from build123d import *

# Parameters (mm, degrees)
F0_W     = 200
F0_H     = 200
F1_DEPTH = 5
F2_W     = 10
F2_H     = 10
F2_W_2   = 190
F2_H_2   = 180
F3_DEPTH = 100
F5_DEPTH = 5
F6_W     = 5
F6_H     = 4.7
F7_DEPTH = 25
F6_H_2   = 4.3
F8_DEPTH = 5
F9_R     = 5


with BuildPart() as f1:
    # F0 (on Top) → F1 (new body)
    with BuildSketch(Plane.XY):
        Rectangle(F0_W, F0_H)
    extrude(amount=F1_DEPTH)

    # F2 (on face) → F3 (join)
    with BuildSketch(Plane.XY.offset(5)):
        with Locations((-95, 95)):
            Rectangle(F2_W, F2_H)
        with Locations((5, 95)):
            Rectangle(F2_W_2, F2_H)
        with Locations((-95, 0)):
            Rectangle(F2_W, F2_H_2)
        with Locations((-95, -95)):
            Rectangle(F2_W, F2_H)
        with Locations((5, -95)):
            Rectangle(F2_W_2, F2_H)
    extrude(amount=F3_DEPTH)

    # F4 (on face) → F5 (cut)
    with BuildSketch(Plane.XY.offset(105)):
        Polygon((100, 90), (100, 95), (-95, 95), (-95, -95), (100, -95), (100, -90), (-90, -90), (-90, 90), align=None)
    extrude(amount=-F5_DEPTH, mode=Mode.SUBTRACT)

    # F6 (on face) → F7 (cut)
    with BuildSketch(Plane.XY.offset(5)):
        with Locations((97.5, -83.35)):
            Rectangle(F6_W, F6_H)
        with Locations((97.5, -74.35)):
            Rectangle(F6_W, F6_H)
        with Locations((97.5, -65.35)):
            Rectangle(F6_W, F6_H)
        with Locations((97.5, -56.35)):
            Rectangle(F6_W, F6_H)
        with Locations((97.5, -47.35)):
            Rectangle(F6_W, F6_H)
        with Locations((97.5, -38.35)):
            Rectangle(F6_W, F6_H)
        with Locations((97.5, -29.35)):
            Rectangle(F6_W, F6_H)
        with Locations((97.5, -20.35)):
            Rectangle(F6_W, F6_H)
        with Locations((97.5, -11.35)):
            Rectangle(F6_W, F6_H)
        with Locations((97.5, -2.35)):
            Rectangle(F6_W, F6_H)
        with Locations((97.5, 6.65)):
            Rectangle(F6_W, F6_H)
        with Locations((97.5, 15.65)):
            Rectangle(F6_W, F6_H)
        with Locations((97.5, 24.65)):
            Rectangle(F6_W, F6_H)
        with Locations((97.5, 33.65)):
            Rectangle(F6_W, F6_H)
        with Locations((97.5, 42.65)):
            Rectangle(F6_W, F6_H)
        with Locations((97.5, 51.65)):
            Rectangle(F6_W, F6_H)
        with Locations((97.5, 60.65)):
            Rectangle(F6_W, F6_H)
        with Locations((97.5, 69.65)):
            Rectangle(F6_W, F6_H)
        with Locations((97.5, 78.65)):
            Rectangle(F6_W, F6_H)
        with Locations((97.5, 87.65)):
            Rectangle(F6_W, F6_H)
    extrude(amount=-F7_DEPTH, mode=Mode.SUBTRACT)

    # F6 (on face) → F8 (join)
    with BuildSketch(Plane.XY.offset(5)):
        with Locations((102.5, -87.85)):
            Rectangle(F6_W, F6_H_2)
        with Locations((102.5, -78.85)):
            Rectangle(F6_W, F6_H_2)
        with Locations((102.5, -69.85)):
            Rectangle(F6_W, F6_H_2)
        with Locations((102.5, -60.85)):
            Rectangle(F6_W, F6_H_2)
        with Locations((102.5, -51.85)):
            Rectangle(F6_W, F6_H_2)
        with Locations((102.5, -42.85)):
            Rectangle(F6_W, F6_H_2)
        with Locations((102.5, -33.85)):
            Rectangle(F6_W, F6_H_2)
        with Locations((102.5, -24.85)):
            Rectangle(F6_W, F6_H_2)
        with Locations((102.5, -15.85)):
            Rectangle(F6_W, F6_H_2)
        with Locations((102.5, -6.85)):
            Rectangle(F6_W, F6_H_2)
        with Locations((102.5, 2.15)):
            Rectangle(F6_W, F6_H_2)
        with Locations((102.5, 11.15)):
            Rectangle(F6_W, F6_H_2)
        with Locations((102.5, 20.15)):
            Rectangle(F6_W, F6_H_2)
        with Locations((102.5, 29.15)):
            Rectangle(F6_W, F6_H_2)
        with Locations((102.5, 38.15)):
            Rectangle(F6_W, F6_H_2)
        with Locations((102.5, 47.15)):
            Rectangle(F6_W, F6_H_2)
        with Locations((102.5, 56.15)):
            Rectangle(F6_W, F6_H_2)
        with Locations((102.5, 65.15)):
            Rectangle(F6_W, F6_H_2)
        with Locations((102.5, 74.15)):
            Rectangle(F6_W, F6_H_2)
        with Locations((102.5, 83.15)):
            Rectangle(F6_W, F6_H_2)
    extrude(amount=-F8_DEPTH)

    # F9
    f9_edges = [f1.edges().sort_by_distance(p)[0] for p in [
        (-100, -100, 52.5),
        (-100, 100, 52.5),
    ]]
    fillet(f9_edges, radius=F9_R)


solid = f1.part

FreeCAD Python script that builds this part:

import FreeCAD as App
import Part
import Sketcher
from FreeCAD import Vector


def edges_at(feature, points):
    """Names of the edges that pass closest to the given points."""
    edges = feature.Shape.Edges
    near = lambda p: min(range(len(edges)), key=lambda i: edges[i].distToShape(Part.Vertex(*p))[0])
    return sorted({f"Edge{near(p) + 1}" for p in points})


def add_polygon(sketch, points):
    """Adds a closed chain of lines whose ends are joined by coincident constraints."""
    first, n = sketch.GeometryCount, len(points)
    for a, b in zip(points, points[1:] + points[:1]):
        sketch.addGeometry(Part.LineSegment(App.Vector(*a, 0), App.Vector(*b, 0)), False)
    for i in range(n):
        sketch.addConstraint(Sketcher.Constraint("Coincident", first + i, 2, first + (i + 1) % n, 1))

doc = App.newDocument("Part")
params = doc.addObject("Spreadsheet::Sheet", "Params")
for row, (alias, value) in enumerate([
    ("sketch1_width", "200 mm"),
    ("pad1_length", "5 mm"),
    ("sketch2_width", "200 mm"),
    ("sketch2_width2", "190 mm"),
    ("sketch2_height", "10 mm"),
    ("pad2_length", "100 mm"),
    ("sketch3_width", "195 mm"),
    ("sketch3_width2", "190 mm"),
    ("sketch3_height", "5 mm"),
    ("pocket1_length", "5 mm"),
    ("sketch4_width", "5 mm"),
    ("sketch4_height", "4.7 mm"),
    ("pocket2_length", "25 mm"),
    ("sketch5_width", "5 mm"),
    ("sketch5_height", "4.3 mm"),
    ("pad3_length", "5 mm"),
    ("fillet_radius", "5 mm"),
], start=1):
    params.set(f"A{row}", alias)
    params.set(f"B{row}", "=" + value)
    params.setAlias(f"B{row}", alias)

body = doc.addObject("PartDesign::Body", "Body")

# Sketch on XY plane
sketch1 = body.newObject("Sketcher::SketchObject", "Sketch")
sketch1.AttachmentSupport = (doc.getObject("XY_Plane"), [""])
sketch1.MapMode = "FlatFace"
add_polygon(sketch1, [(-100, 100), (-100, -100), (100, -100), (100, 100)])  # lines 0-3
sketch1.addConstraint([
    Sketcher.Constraint("Vertical", 0),
    Sketcher.Constraint("Horizontal", 1),
    Sketcher.Constraint("Vertical", 2),
    Sketcher.Constraint("Horizontal", 3),
    Sketcher.Constraint("Symmetric", 0, 2, 2, 2, -1, 1),
    Sketcher.Constraint("Equal", 3, 0),
    Sketcher.Constraint("DistanceX", 1, 1, 1, 2, 200.0),
])
sketch1.setExpression("Constraints[10]", "Params.sketch1_width")
pad1 = body.newObject("PartDesign::Pad", "Pad")
pad1.Profile = sketch1
pad1.setExpression("Length", "Params.pad1_length")

# Sketch on XY plane
sketch2 = body.newObject("Sketcher::SketchObject", "Sketch001")
sketch2.AttachmentSupport = (doc.getObject("XY_Plane"), [""])
sketch2.MapMode = "FlatFace"
sketch2.AttachmentOffset = App.Placement(Vector(0, 0, 5), App.Rotation())
add_polygon(sketch2, [(-100, 100), (-100, -100), (100, -100), (100, -90), (-90, -90), (-90, 90), (100, 90), (100, 100)])  # lines 0-7
sketch2.addConstraint([
    Sketcher.Constraint("Vertical", 0),
    Sketcher.Constraint("Horizontal", 1),
    Sketcher.Constraint("Vertical", 2),
    Sketcher.Constraint("Horizontal", 3),
    Sketcher.Constraint("Vertical", 4),
    Sketcher.Constraint("Horizontal", 5),
    Sketcher.Constraint("Vertical", 6),
    Sketcher.Constraint("Horizontal", 7),
    Sketcher.Constraint("Symmetric", 0, 2, 6, 2, -1, 1),
    Sketcher.Constraint("Symmetric", 2, 2, 5, 2, -1),
    Sketcher.Constraint("Equal", 7, 0),
    Sketcher.Constraint("DistanceX", 1, 1, 1, 2, 200.0),
    Sketcher.Constraint("DistanceX", 3, 2, 3, 1, 190.0),
    Sketcher.Constraint("DistanceY", 2, 1, 2, 2, 10.0),
])
sketch2.setExpression("Constraints[19]", "Params.sketch2_width")
sketch2.setExpression("Constraints[20]", "Params.sketch2_width2")
sketch2.setExpression("Constraints[21]", "Params.sketch2_height")
pad2 = body.newObject("PartDesign::Pad", "Pad001")
pad2.Profile = sketch2
pad2.setExpression("Length", "Params.pad2_length")

# Sketch on XY plane
sketch3 = body.newObject("Sketcher::SketchObject", "Sketch002")
sketch3.AttachmentSupport = (doc.getObject("XY_Plane"), [""])
sketch3.MapMode = "FlatFace"
sketch3.AttachmentOffset = App.Placement(Vector(0, 0, 105), App.Rotation())
add_polygon(sketch3, [(100, 90), (100, 95), (-95, 95), (-95, -95), (100, -95), (100, -90), (-90, -90), (-90, 90)])  # lines 0-7
sketch3.addConstraint([
    Sketcher.Constraint("Vertical", 0),
    Sketcher.Constraint("Horizontal", 1),
    Sketcher.Constraint("Vertical", 2),
    Sketcher.Constraint("Horizontal", 3),
    Sketcher.Constraint("Vertical", 4),
    Sketcher.Constraint("Horizontal", 5),
    Sketcher.Constraint("Vertical", 6),
    Sketcher.Constraint("Horizontal", 7),
    Sketcher.Constraint("Symmetric", 0, 2, 3, 2, -1),
    Sketcher.Constraint("Equal", 7, 2),
    Sketcher.Constraint("Equal", 0, 4),
    Sketcher.Constraint("DistanceX", 1, 2, 1, 1, 195.0),
    Sketcher.Constraint("DistanceX", 5, 2, 5, 1, 190.0),
    Sketcher.Constraint("DistanceY", 0, 1, 0, 2, 5.0),
    Sketcher.Constraint("DistanceX", -1, 1, 0, 2, 100.0),
])
sketch3.setExpression("Constraints[19]", "Params.sketch3_width")
sketch3.setExpression("Constraints[20]", "Params.sketch3_width2")
sketch3.setExpression("Constraints[21]", "Params.sketch3_height")
pocket1 = body.newObject("PartDesign::Pocket", "Pocket")
pocket1.Profile = sketch3
pocket1.setExpression("Length", "Params.pocket1_length")

# Sketch on XY plane
sketch4 = body.newObject("Sketcher::SketchObject", "Sketch003")
sketch4.AttachmentSupport = (doc.getObject("XY_Plane"), [""])
sketch4.MapMode = "FlatFace"
sketch4.AttachmentOffset = App.Placement(Vector(0, 0, 5), App.Rotation())
add_polygon(sketch4, [(95, -81), (95, -85.7), (100, -85.7), (100, -81)])  # lines 0-3
add_polygon(sketch4, [(95, -72), (95, -76.7), (100, -76.7), (100, -72)])  # lines 4-7
add_polygon(sketch4, [(95, -63), (95, -67.7), (100, -67.7), (100, -63)])  # lines 8-11
add_polygon(sketch4, [(95, -54), (95, -58.7), (100, -58.7), (100, -54)])  # lines 12-15
add_polygon(sketch4, [(95, -45), (95, -49.7), (100, -49.7), (100, -45)])  # lines 16-19
add_polygon(sketch4, [(95, -36), (95, -40.7), (100, -40.7), (100, -36)])  # lines 20-23
add_polygon(sketch4, [(95, -27), (95, -31.7), (100, -31.7), (100, -27)])  # lines 24-27
add_polygon(sketch4, [(95, -18), (95, -22.7), (100, -22.7), (100, -18)])  # lines 28-31
add_polygon(sketch4, [(95, -9), (95, -13.7), (100, -13.7), (100, -9)])  # lines 32-35
add_polygon(sketch4, [(95, 0), (95, -4.7), (100, -4.7), (100, 0)])  # lines 36-39
add_polygon(sketch4, [(95, 9), (95, 4.3), (100, 4.3), (100, 9)])  # lines 40-43
add_polygon(sketch4, [(95, 18), (95, 13.3), (100, 13.3), (100, 18)])  # lines 44-47
add_polygon(sketch4, [(95, 27), (95, 22.3), (100, 22.3), (100, 27)])  # lines 48-51
add_polygon(sketch4, [(95, 36), (95, 31.3), (100, 31.3), (100, 36)])  # lines 52-55
add_polygon(sketch4, [(95, 45), (95, 40.3), (100, 40.3), (100, 45)])  # lines 56-59
add_polygon(sketch4, [(95, 54), (95, 49.3), (100, 49.3), (100, 54)])  # lines 60-63
add_polygon(sketch4, [(95, 63), (95, 58.3), (100, 58.3), (100, 63)])  # lines 64-67
add_polygon(sketch4, [(95, 72), (95, 67.3), (100, 67.3), (100, 72)])  # lines 68-71
add_polygon(sketch4, [(95, 81), (95, 76.3), (100, 76.3), (100, 81)])  # lines 72-75
add_polygon(sketch4, [(95, 90), (95, 85.3), (100, 85.3), (100, 90)])  # lines 76-79
sketch4.addConstraint([
    Sketcher.Constraint("Vertical", 0),
    Sketcher.Constraint("Horizontal", 1),
    Sketcher.Constraint("Vertical", 2),
    Sketcher.Constraint("Horizontal", 3),
    Sketcher.Constraint("Vertical", 4),
    Sketcher.Constraint("Horizontal", 5),
    Sketcher.Constraint("Vertical", 6),
    Sketcher.Constraint("Horizontal", 7),
    Sketcher.Constraint("Vertical", 8),
    Sketcher.Constraint("Horizontal", 9),
    Sketcher.Constraint("Vertical", 10),
    Sketcher.Constraint("Horizontal", 11),
    Sketcher.Constraint("Vertical", 12),
    Sketcher.Constraint("Horizontal", 13),
    Sketcher.Constraint("Vertical", 14),
    Sketcher.Constraint("Horizontal", 15),
    Sketcher.Constraint("Vertical", 16),
    Sketcher.Constraint("Horizontal", 17),
    Sketcher.Constraint("Vertical", 18),
    Sketcher.Constraint("Horizontal", 19),
    Sketcher.Constraint("Vertical", 20),
    Sketcher.Constraint("Horizontal", 21),
    Sketcher.Constraint("Vertical", 22),
    Sketcher.Constraint("Horizontal", 23),
    Sketcher.Constraint("Vertical", 24),
    Sketcher.Constraint("Horizontal", 25),
    Sketcher.Constraint("Vertical", 26),
    Sketcher.Constraint("Horizontal", 27),
    Sketcher.Constraint("Vertical", 28),
    Sketcher.Constraint("Horizontal", 29),
    Sketcher.Constraint("Vertical", 30),
    Sketcher.Constraint("Horizontal", 31),
    Sketcher.Constraint("Vertical", 32),
    Sketcher.Constraint("Horizontal", 33),
    Sketcher.Constraint("Vertical", 34),
    Sketcher.Constraint("Horizontal", 35),
    Sketcher.Constraint("Vertical", 36),
    Sketcher.Constraint("Horizontal", 37),
    Sketcher.Constraint("Vertical", 38),
    Sketcher.Constraint("Horizontal", 39),
    Sketcher.Constraint("Vertical", 40),
    Sketcher.Constraint("Horizontal", 41),
    Sketcher.Constraint("Vertical", 42),
    Sketcher.Constraint("Horizontal", 43),
    Sketcher.Constraint("Vertical", 44),
    Sketcher.Constraint("Horizontal", 45),
    Sketcher.Constraint("Vertical", 46),
    Sketcher.Constraint("Horizontal", 47),
    Sketcher.Constraint("Vertical", 48),
    Sketcher.Constraint("Horizontal", 49),
    Sketcher.Constraint("Vertical", 50),
    Sketcher.Constraint("Horizontal", 51),
    Sketcher.Constraint("Vertical", 52),
    Sketcher.Constraint("Horizontal", 53),
    Sketcher.Constraint("Vertical", 54),
    Sketcher.Constraint("Horizontal", 55),
    Sketcher.Constraint("Vertical", 56),
    Sketcher.Constraint("Horizontal", 57),
    Sketcher.Constraint("Vertical", 58),
    Sketcher.Constraint("Horizontal", 59),
    Sketcher.Constraint("Vertical", 60),
    Sketcher.Constraint("Horizontal", 61),
    Sketcher.Constraint("Vertical", 62),
    Sketcher.Constraint("Horizontal", 63),
    Sketcher.Constraint("Vertical", 64),
    Sketcher.Constraint("Horizontal", 65),
    Sketcher.Constraint("Vertical", 66),
    Sketcher.Constraint("Horizontal", 67),
    Sketcher.Constraint("Vertical", 68),
    Sketcher.Constraint("Horizontal", 69),
    Sketcher.Constraint("Vertical", 70),
    Sketcher.Constraint("Horizontal", 71),
    Sketcher.Constraint("Vertical", 72),
    Sketcher.Constraint("Horizontal", 73),
    Sketcher.Constraint("Vertical", 74),
    Sketcher.Constraint("Horizontal", 75),
    Sketcher.Constraint("Vertical", 76),
    Sketcher.Constraint("Horizontal", 77),
    Sketcher.Constraint("Vertical", 78),
    Sketcher.Constraint("Horizontal", 79),
    Sketcher.Constraint("Symmetric", 34, 2, 42, 2, -1),
    Sketcher.Constraint("Symmetric", 30, 2, 46, 2, -1),
    Sketcher.Constraint("Symmetric", 26, 2, 50, 2, -1),
    Sketcher.Constraint("Symmetric", 22, 2, 54, 2, -1),
    Sketcher.Constraint("Symmetric", 18, 2, 58, 2, -1),
    Sketcher.Constraint("Symmetric", 14, 2, 62, 2, -1),
    Sketcher.Constraint("Symmetric", 10, 2, 66, 2, -1),
    Sketcher.Constraint("Symmetric", 6, 2, 70, 2, -1),
    Sketcher.Constraint("Symmetric", 2, 2, 74, 2, -1),
    Sketcher.Constraint("PointOnObject", 38, 2, -1),
    Sketcher.Constraint("Vertical", 3, 2, 4, 2),
    Sketcher.Constraint("Vertical", 2, 2, 5, 2),
    Sketcher.Constraint("Vertical", 7, 2, 8, 2),
    Sketcher.Constraint("Vertical", 6, 2, 9, 2),
    Sketcher.Constraint("Vertical", 11, 2, 12, 2),
    Sketcher.Constraint("Vertical", 10, 2, 13, 2),
    Sketcher.Constraint("Vertical", 15, 2, 16, 2),
    Sketcher.Constraint("Vertical", 14, 2, 17, 2),
    Sketcher.Constraint("Vertical", 19, 2, 20, 2),
    Sketcher.Constraint("Vertical", 18, 2, 21, 2),
    Sketcher.Constraint("Vertical", 23, 2, 24, 2),
    Sketcher.Constraint("Vertical", 22, 2, 25, 2),
    Sketcher.Constraint("Vertical", 27, 2, 28, 2),
    Sketcher.Constraint("Vertical", 26, 2, 29, 2),
    Sketcher.Constraint("Vertical", 31, 2, 32, 2),
    Sketcher.Constraint("Vertical", 30, 2, 33, 2),
    Sketcher.Constraint("Vertical", 35, 2, 36, 2),
    Sketcher.Constraint("Vertical", 34, 2, 37, 2),
    Sketcher.Constraint("Vertical", 39, 2, 40, 2),
    Sketcher.Constraint("Vertical", 43, 2, 44, 2),
    Sketcher.Constraint("Vertical", 47, 2, 48, 2),
    Sketcher.Constraint("Vertical", 51, 2, 52, 2),
    Sketcher.Constraint("Vertical", 55, 2, 56, 2),
    Sketcher.Constraint("Vertical", 59, 2, 60, 2),
    Sketcher.Constraint("Vertical", 63, 2, 64, 2),
    Sketcher.Constraint("Vertical", 67, 2, 68, 2),
    Sketcher.Constraint("Vertical", 71, 2, 72, 2),
    Sketcher.Constraint("Vertical", 75, 2, 76, 2),
    Sketcher.Constraint("Vertical", 74, 2, 77, 2),
    Sketcher.Constraint("Equal", 2, 4),
    Sketcher.Constraint("Equal", 6, 8),
    Sketcher.Constraint("Equal", 10, 12),
    Sketcher.Constraint("Equal", 14, 16),
    Sketcher.Constraint("Equal", 18, 20),
    Sketcher.Constraint("Equal", 22, 24),
    Sketcher.Constraint("Equal", 26, 28),
    Sketcher.Constraint("Equal", 30, 32),
    Sketcher.Constraint("Equal", 34, 36),
    Sketcher.Constraint("Equal", 38, 40),
    Sketcher.Constraint("Equal", 42, 44),
    Sketcher.Constraint("Equal", 46, 48),
    Sketcher.Constraint("Equal", 50, 52),
    Sketcher.Constraint("Equal", 54, 56),
    Sketcher.Constraint("Equal", 58, 60),
    Sketcher.Constraint("Equal", 62, 64),
    Sketcher.Constraint("Equal", 66, 68),
    Sketcher.Constraint("Equal", 70, 72),
    Sketcher.Constraint("Equal", 74, 76),
    Sketcher.Constraint("DistanceX", 1, 1, 1, 2, 5.0),
    Sketcher.Constraint("DistanceY", 0, 2, 0, 1, 4.7),
    Sketcher.Constraint("DistanceX", -1, 1, 0, 2, 95.0),
    Sketcher.Constraint("DistanceY", 2, 2, -1, 1, 81.0),
    Sketcher.Constraint("DistanceY", 6, 2, -1, 1, 72.0),
    Sketcher.Constraint("DistanceY", 10, 2, -1, 1, 63.0),
    Sketcher.Constraint("DistanceY", 14, 2, -1, 1, 54.0),
    Sketcher.Constraint("DistanceY", 18, 2, -1, 1, 45.0),
    Sketcher.Constraint("DistanceY", 22, 2, -1, 1, 36.0),
    Sketcher.Constraint("DistanceY", 26, 2, -1, 1, 27.0),
    Sketcher.Constraint("DistanceY", 30, 2, -1, 1, 18.0),
    Sketcher.Constraint("DistanceY", 34, 2, -1, 1, 9.0),
    Sketcher.Constraint("DistanceY", -1, 1, 78, 2, 90.0),
])
sketch4.setExpression("Constraints[218]", "Params.sketch4_width")
sketch4.setExpression("Constraints[219]", "Params.sketch4_height")
pocket2 = body.newObject("PartDesign::Pocket", "Pocket001")
pocket2.Profile = sketch4
pocket2.setExpression("Length", "Params.pocket2_length")

# Sketch on XY plane
sketch5 = body.newObject("Sketcher::SketchObject", "Sketch004")
sketch5.AttachmentSupport = (doc.getObject("XY_Plane"), [""])
sketch5.MapMode = "FlatFace"
sketch5.AttachmentOffset = App.Placement(Vector(0, 0, 5), App.Rotation())
add_polygon(sketch5, [(100, -85.7), (100, -90), (105, -90), (105, -85.7)])  # lines 0-3
add_polygon(sketch5, [(100, -76.7), (100, -81), (105, -81), (105, -76.7)])  # lines 4-7
add_polygon(sketch5, [(100, -67.7), (100, -72), (105, -72), (105, -67.7)])  # lines 8-11
add_polygon(sketch5, [(100, -58.7), (100, -63), (105, -63), (105, -58.7)])  # lines 12-15
add_polygon(sketch5, [(100, -49.7), (100, -54), (105, -54), (105, -49.7)])  # lines 16-19
add_polygon(sketch5, [(100, -40.7), (100, -45), (105, -45), (105, -40.7)])  # lines 20-23
add_polygon(sketch5, [(100, -31.7), (100, -36), (105, -36), (105, -31.7)])  # lines 24-27
add_polygon(sketch5, [(100, -22.7), (100, -27), (105, -27), (105, -22.7)])  # lines 28-31
add_polygon(sketch5, [(100, -13.7), (100, -18), (105, -18), (105, -13.7)])  # lines 32-35
add_polygon(sketch5, [(100, -4.7), (100, -9), (105, -9), (105, -4.7)])  # lines 36-39
add_polygon(sketch5, [(100, 4.3), (100, 0), (105, 0), (105, 4.3)])  # lines 40-43
add_polygon(sketch5, [(100, 13.3), (100, 9), (105, 9), (105, 13.3)])  # lines 44-47
add_polygon(sketch5, [(100, 22.3), (100, 18), (105, 18), (105, 22.3)])  # lines 48-51
add_polygon(sketch5, [(100, 31.3), (100, 27), (105, 27), (105, 31.3)])  # lines 52-55
add_polygon(sketch5, [(100, 40.3), (100, 36), (105, 36), (105, 40.3)])  # lines 56-59
add_polygon(sketch5, [(100, 49.3), (100, 45), (105, 45), (105, 49.3)])  # lines 60-63
add_polygon(sketch5, [(100, 58.3), (100, 54), (105, 54), (105, 58.3)])  # lines 64-67
add_polygon(sketch5, [(100, 67.3), (100, 63), (105, 63), (105, 67.3)])  # lines 68-71
add_polygon(sketch5, [(100, 76.3), (100, 72), (105, 72), (105, 76.3)])  # lines 72-75
add_polygon(sketch5, [(100, 85.3), (100, 81), (105, 81), (105, 85.3)])  # lines 76-79
sketch5.addConstraint([
    Sketcher.Constraint("Vertical", 0),
    Sketcher.Constraint("Horizontal", 1),
    Sketcher.Constraint("Vertical", 2),
    Sketcher.Constraint("Horizontal", 3),
    Sketcher.Constraint("Vertical", 4),
    Sketcher.Constraint("Horizontal", 5),
    Sketcher.Constraint("Vertical", 6),
    Sketcher.Constraint("Horizontal", 7),
    Sketcher.Constraint("Vertical", 8),
    Sketcher.Constraint("Horizontal", 9),
    Sketcher.Constraint("Vertical", 10),
    Sketcher.Constraint("Horizontal", 11),
    Sketcher.Constraint("Vertical", 12),
    Sketcher.Constraint("Horizontal", 13),
    Sketcher.Constraint("Vertical", 14),
    Sketcher.Constraint("Horizontal", 15),
    Sketcher.Constraint("Vertical", 16),
    Sketcher.Constraint("Horizontal", 17),
    Sketcher.Constraint("Vertical", 18),
    Sketcher.Constraint("Horizontal", 19),
    Sketcher.Constraint("Vertical", 20),
    Sketcher.Constraint("Horizontal", 21),
    Sketcher.Constraint("Vertical", 22),
    Sketcher.Constraint("Horizontal", 23),
    Sketcher.Constraint("Vertical", 24),
    Sketcher.Constraint("Horizontal", 25),
    Sketcher.Constraint("Vertical", 26),
    Sketcher.Constraint("Horizontal", 27),
    Sketcher.Constraint("Vertical", 28),
    Sketcher.Constraint("Horizontal", 29),
    Sketcher.Constraint("Vertical", 30),
    Sketcher.Constraint("Horizontal", 31),
    Sketcher.Constraint("Vertical", 32),
    Sketcher.Constraint("Horizontal", 33),
    Sketcher.Constraint("Vertical", 34),
    Sketcher.Constraint("Horizontal", 35),
    Sketcher.Constraint("Vertical", 36),
    Sketcher.Constraint("Horizontal", 37),
    Sketcher.Constraint("Vertical", 38),
    Sketcher.Constraint("Horizontal", 39),
    Sketcher.Constraint("Vertical", 40),
    Sketcher.Constraint("Horizontal", 41),
    Sketcher.Constraint("Vertical", 42),
    Sketcher.Constraint("Horizontal", 43),
    Sketcher.Constraint("Vertical", 44),
    Sketcher.Constraint("Horizontal", 45),
    Sketcher.Constraint("Vertical", 46),
    Sketcher.Constraint("Horizontal", 47),
    Sketcher.Constraint("Vertical", 48),
    Sketcher.Constraint("Horizontal", 49),
    Sketcher.Constraint("Vertical", 50),
    Sketcher.Constraint("Horizontal", 51),
    Sketcher.Constraint("Vertical", 52),
    Sketcher.Constraint("Horizontal", 53),
    Sketcher.Constraint("Vertical", 54),
    Sketcher.Constraint("Horizontal", 55),
    Sketcher.Constraint("Vertical", 56),
    Sketcher.Constraint("Horizontal", 57),
    Sketcher.Constraint("Vertical", 58),
    Sketcher.Constraint("Horizontal", 59),
    Sketcher.Constraint("Vertical", 60),
    Sketcher.Constraint("Horizontal", 61),
    Sketcher.Constraint("Vertical", 62),
    Sketcher.Constraint("Horizontal", 63),
    Sketcher.Constraint("Vertical", 64),
    Sketcher.Constraint("Horizontal", 65),
    Sketcher.Constraint("Vertical", 66),
    Sketcher.Constraint("Horizontal", 67),
    Sketcher.Constraint("Vertical", 68),
    Sketcher.Constraint("Horizontal", 69),
    Sketcher.Constraint("Vertical", 70),
    Sketcher.Constraint("Horizontal", 71),
    Sketcher.Constraint("Vertical", 72),
    Sketcher.Constraint("Horizontal", 73),
    Sketcher.Constraint("Vertical", 74),
    Sketcher.Constraint("Horizontal", 75),
    Sketcher.Constraint("Vertical", 76),
    Sketcher.Constraint("Horizontal", 77),
    Sketcher.Constraint("Vertical", 78),
    Sketcher.Constraint("Horizontal", 79),
    Sketcher.Constraint("Symmetric", 36, 2, 44, 2, -1),
    Sketcher.Constraint("Symmetric", 32, 2, 48, 2, -1),
    Sketcher.Constraint("Symmetric", 28, 2, 52, 2, -1),
    Sketcher.Constraint("Symmetric", 24, 2, 56, 2, -1),
    Sketcher.Constraint("Symmetric", 20, 2, 60, 2, -1),
    Sketcher.Constraint("Symmetric", 16, 2, 64, 2, -1),
    Sketcher.Constraint("Symmetric", 12, 2, 68, 2, -1),
    Sketcher.Constraint("Symmetric", 8, 2, 72, 2, -1),
    Sketcher.Constraint("Symmetric", 4, 2, 76, 2, -1),
    Sketcher.Constraint("PointOnObject", 40, 2, -1),
    Sketcher.Constraint("Vertical", 3, 2, 4, 2),
    Sketcher.Constraint("Vertical", 2, 2, 5, 2),
    Sketcher.Constraint("Vertical", 7, 2, 8, 2),
    Sketcher.Constraint("Vertical", 6, 2, 9, 2),
    Sketcher.Constraint("Vertical", 11, 2, 12, 2),
    Sketcher.Constraint("Vertical", 10, 2, 13, 2),
    Sketcher.Constraint("Vertical", 15, 2, 16, 2),
    Sketcher.Constraint("Vertical", 14, 2, 17, 2),
    Sketcher.Constraint("Vertical", 19, 2, 20, 2),
    Sketcher.Constraint("Vertical", 18, 2, 21, 2),
    Sketcher.Constraint("Vertical", 23, 2, 24, 2),
    Sketcher.Constraint("Vertical", 22, 2, 25, 2),
    Sketcher.Constraint("Vertical", 27, 2, 28, 2),
    Sketcher.Constraint("Vertical", 26, 2, 29, 2),
    Sketcher.Constraint("Vertical", 31, 2, 32, 2),
    Sketcher.Constraint("Vertical", 30, 2, 33, 2),
    Sketcher.Constraint("Vertical", 35, 2, 36, 2),
    Sketcher.Constraint("Vertical", 34, 2, 37, 2),
    Sketcher.Constraint("Vertical", 39, 2, 40, 2),
    Sketcher.Constraint("Vertical", 38, 2, 41, 2),
    Sketcher.Constraint("Vertical", 42, 2, 45, 2),
    Sketcher.Constraint("Vertical", 46, 2, 49, 2),
    Sketcher.Constraint("Vertical", 50, 2, 53, 2),
    Sketcher.Constraint("Vertical", 54, 2, 57, 2),
    Sketcher.Constraint("Vertical", 58, 2, 61, 2),
    Sketcher.Constraint("Vertical", 62, 2, 65, 2),
    Sketcher.Constraint("Vertical", 66, 2, 69, 2),
    Sketcher.Constraint("Vertical", 70, 2, 73, 2),
    Sketcher.Constraint("Vertical", 74, 2, 77, 2),
    Sketcher.Constraint("Equal", 2, 4),
    Sketcher.Constraint("Equal", 6, 8),
    Sketcher.Constraint("Equal", 10, 12),
    Sketcher.Constraint("Equal", 14, 16),
    Sketcher.Constraint("Equal", 18, 20),
    Sketcher.Constraint("Equal", 22, 24),
    Sketcher.Constraint("Equal", 26, 28),
    Sketcher.Constraint("Equal", 30, 32),
    Sketcher.Constraint("Equal", 34, 36),
    Sketcher.Constraint("Equal", 38, 40),
    Sketcher.Constraint("Equal", 42, 44),
    Sketcher.Constraint("Equal", 46, 48),
    Sketcher.Constraint("Equal", 50, 52),
    Sketcher.Constraint("Equal", 54, 56),
    Sketcher.Constraint("Equal", 58, 60),
    Sketcher.Constraint("Equal", 62, 64),
    Sketcher.Constraint("Equal", 66, 68),
    Sketcher.Constraint("Equal", 70, 72),
    Sketcher.Constraint("Equal", 74, 76),
    Sketcher.Constraint("DistanceX", 1, 1, 1, 2, 5.0),
    Sketcher.Constraint("DistanceY", 0, 2, 0, 1, 4.3),
    Sketcher.Constraint("DistanceX", -1, 1, 0, 2, 100.0),
    Sketcher.Constraint("DistanceY", 0, 2, -1, 1, 90.0),
    Sketcher.Constraint("DistanceY", 4, 2, -1, 1, 81.0),
    Sketcher.Constraint("DistanceY", 8, 2, -1, 1, 72.0),
    Sketcher.Constraint("DistanceY", 12, 2, -1, 1, 63.0),
    Sketcher.Constraint("DistanceY", 16, 2, -1, 1, 54.0),
    Sketcher.Constraint("DistanceY", 20, 2, -1, 1, 45.0),
    Sketcher.Constraint("DistanceY", 24, 2, -1, 1, 36.0),
    Sketcher.Constraint("DistanceY", 28, 2, -1, 1, 27.0),
    Sketcher.Constraint("DistanceY", 32, 2, -1, 1, 18.0),
    Sketcher.Constraint("DistanceY", 36, 2, -1, 1, 9.0),
])
sketch5.setExpression("Constraints[218]", "Params.sketch5_width")
sketch5.setExpression("Constraints[219]", "Params.sketch5_height")
pad3 = body.newObject("PartDesign::Pad", "Pad002")
pad3.Profile = sketch5
pad3.setExpression("Length", "Params.pad3_length")
pad3.Reversed = True
doc.recompute()

fillet = body.newObject("PartDesign::Fillet", "Fillet")
fillet.Base = (pad3, edges_at(pad3, [(-100, -100, 52.5), (-100, 100, 52.5)]))
fillet.setExpression("Radius", "Params.fillet_radius")

doc.recompute()
